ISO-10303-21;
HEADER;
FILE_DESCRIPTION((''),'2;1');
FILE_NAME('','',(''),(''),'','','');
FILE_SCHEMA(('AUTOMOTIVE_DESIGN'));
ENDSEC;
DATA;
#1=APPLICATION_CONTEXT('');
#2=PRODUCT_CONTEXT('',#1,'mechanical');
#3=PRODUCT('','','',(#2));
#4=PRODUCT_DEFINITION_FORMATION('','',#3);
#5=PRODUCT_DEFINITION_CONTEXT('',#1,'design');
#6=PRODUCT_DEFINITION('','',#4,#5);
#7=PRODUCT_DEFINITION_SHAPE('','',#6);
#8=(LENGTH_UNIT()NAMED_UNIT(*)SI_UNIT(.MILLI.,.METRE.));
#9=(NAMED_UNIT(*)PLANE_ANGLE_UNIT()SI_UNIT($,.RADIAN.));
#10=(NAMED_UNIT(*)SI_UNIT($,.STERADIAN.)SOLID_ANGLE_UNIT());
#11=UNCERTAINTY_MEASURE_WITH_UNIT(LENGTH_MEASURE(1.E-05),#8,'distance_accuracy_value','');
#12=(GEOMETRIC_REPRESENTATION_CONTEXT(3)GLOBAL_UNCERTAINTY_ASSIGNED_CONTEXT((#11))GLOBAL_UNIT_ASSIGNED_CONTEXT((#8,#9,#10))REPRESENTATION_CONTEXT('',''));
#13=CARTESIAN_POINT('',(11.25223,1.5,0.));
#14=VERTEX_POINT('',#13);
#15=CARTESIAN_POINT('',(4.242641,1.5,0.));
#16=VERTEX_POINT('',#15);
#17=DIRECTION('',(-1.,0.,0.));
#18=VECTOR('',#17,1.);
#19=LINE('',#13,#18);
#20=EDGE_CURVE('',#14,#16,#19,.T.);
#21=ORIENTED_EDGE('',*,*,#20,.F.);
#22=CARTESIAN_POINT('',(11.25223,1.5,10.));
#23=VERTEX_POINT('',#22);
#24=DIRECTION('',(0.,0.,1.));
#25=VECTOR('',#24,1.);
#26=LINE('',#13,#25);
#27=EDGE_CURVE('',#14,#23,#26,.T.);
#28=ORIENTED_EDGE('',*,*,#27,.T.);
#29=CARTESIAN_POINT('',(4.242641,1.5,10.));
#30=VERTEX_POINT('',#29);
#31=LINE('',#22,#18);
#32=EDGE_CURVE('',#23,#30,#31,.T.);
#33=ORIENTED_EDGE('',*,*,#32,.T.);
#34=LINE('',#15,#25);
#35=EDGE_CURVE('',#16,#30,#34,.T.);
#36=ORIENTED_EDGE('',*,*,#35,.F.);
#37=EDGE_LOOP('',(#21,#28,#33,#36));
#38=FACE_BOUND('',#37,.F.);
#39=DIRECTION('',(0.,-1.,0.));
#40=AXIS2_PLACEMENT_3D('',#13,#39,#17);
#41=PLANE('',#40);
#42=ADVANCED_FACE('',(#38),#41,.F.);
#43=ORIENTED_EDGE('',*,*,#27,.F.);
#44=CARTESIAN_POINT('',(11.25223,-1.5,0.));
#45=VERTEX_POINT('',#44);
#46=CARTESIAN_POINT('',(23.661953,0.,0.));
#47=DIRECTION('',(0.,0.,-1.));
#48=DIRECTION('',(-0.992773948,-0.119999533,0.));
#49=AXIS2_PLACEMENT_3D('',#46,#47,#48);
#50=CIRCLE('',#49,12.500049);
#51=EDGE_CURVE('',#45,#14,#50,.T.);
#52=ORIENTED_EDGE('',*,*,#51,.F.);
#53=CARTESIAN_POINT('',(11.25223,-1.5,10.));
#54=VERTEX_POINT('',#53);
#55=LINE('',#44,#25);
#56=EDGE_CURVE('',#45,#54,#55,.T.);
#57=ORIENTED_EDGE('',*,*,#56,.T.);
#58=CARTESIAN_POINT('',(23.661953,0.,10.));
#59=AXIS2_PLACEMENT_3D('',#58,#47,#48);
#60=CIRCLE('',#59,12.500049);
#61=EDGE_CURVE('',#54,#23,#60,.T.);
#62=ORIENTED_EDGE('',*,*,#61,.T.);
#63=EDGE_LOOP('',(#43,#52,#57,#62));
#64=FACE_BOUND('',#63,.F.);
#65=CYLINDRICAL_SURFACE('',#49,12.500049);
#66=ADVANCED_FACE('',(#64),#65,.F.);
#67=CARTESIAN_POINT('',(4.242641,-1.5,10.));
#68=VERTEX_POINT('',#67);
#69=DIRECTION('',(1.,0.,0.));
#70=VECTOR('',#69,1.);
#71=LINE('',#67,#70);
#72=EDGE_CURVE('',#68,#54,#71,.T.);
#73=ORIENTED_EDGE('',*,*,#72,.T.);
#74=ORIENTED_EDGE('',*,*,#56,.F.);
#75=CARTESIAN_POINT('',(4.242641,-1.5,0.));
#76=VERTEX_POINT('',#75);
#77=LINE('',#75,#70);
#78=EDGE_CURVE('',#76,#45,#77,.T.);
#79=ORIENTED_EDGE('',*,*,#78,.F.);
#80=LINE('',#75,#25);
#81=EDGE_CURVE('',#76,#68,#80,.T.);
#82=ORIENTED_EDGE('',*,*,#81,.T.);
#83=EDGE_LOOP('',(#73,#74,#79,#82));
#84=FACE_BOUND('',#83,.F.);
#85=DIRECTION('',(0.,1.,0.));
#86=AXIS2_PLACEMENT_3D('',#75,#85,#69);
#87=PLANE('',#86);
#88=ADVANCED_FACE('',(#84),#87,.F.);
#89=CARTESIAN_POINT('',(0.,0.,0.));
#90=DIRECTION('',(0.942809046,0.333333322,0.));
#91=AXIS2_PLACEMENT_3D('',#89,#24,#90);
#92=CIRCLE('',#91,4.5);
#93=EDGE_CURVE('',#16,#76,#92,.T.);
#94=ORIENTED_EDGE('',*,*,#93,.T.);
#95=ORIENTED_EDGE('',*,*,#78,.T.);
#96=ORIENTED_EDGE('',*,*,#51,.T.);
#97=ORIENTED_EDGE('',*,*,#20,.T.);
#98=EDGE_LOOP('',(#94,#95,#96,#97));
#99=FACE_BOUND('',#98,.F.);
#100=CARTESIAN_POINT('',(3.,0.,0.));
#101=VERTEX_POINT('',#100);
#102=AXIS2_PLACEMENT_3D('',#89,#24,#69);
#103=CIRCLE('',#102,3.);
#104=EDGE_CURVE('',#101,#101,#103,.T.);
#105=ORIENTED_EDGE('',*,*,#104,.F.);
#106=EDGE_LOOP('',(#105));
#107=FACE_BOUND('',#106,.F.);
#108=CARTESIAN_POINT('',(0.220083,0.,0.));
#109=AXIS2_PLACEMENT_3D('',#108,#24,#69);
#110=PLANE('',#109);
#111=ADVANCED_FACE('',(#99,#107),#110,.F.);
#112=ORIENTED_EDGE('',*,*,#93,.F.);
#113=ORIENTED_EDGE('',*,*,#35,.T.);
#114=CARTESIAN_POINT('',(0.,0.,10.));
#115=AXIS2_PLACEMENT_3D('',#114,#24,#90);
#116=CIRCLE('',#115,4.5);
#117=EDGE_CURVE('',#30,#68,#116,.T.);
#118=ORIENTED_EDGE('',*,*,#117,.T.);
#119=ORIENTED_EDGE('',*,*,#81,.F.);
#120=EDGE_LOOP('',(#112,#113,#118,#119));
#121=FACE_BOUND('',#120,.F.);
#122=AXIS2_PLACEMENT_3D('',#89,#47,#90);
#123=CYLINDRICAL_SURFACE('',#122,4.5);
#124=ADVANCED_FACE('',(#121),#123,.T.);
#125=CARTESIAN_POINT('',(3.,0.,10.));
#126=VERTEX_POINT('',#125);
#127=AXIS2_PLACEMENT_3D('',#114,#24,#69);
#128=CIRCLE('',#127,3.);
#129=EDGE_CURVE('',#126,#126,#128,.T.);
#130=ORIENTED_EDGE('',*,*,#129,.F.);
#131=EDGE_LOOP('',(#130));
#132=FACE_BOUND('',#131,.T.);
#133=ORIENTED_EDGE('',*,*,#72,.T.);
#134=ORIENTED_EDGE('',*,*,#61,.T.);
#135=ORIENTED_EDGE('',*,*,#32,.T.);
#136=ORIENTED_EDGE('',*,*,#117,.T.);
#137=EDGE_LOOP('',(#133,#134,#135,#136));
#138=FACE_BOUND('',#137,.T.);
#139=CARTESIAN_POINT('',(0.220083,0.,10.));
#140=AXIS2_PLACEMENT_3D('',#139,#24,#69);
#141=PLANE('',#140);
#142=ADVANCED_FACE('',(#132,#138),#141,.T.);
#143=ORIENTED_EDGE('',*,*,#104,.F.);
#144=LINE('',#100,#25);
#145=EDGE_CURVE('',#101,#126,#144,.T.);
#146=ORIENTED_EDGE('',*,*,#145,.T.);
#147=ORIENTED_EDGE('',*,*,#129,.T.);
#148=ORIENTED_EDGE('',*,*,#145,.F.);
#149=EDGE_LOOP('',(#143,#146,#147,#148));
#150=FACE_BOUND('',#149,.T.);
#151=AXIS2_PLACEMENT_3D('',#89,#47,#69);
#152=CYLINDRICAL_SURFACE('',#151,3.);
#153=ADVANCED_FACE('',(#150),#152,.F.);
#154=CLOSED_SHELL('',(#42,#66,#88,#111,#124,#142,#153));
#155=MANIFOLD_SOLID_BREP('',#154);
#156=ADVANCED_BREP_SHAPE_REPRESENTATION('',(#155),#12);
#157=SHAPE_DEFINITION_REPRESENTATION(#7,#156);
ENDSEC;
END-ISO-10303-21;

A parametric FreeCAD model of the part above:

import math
import FreeCAD as App
import Part
import Sketcher

doc = App.newDocument("Part")
body = doc.addObject("PartDesign::Body", "Body")

sketch1 = body.newObject("Sketcher::SketchObject", "Sketch")
sketch1.AttachmentSupport = (doc.getObject("XY_Plane"), [""])
sketch1.MapMode = "FlatFace"
sketch1.addGeometry([
    Part.ArcOfCircle(Part.Circle(App.Vector(0, 0, 0), App.Vector(0, 0, 1), 4.5), math.radians(19), math.radians(341)),
    Part.LineSegment(App.Vector(4.2, -1.5, 0), App.Vector(11.3, -1.5, 0)),
    Part.ArcOfCircle(Part.Circle(App.Vector(23.7, 0, 0), App.Vector(0, 0, 1), 12.5), math.radians(173.11), math.radians(186.89)),
    Part.LineSegment(App.Vector(11.3, 1.5, 0), App.Vector(4.2, 1.5, 0)),
    Part.Circle(App.Vector(0, 0, 0), App.Vector(0, 0, 1), 3),
], False)
sketch1.addConstraint([
    Sketcher.Constraint("Coincident", 0, 2, 1, 1),
    Sketcher.Constraint("Coincident", 1, 2, 2, 2),
    Sketcher.Constraint("Coincident", 2, 1, 3, 1),
    Sketcher.Constraint("Coincident", 3, 2, 0, 1),
    Sketcher.Constraint("Horizontal", 1),
    Sketcher.Constraint("Horizontal", 3),
    Sketcher.Constraint("Coincident", 0, 3, -1, 1),
    Sketcher.Constraint("Coincident", 4, 3, -1, 1),
    Sketcher.Constraint("Symmetric", 1, 2, 2, 1, -1),
    Sketcher.Constraint("Diameter", 4, 6.0),
    Sketcher.Constraint("Radius", 0, 4.5),
    Sketcher.Constraint("DistanceY", 1, 2, 2, 1, 3.0),
    Sketcher.Constraint("Radius", 2, 12.500049),
    Sketcher.Constraint("DistanceX", 1, 1, 1, 2, 7.009589),
])
pad1 = body.newObject("PartDesign::Pad", "Pad")
pad1.Profile = sketch1
pad1.Length = 10

doc.recompute()
